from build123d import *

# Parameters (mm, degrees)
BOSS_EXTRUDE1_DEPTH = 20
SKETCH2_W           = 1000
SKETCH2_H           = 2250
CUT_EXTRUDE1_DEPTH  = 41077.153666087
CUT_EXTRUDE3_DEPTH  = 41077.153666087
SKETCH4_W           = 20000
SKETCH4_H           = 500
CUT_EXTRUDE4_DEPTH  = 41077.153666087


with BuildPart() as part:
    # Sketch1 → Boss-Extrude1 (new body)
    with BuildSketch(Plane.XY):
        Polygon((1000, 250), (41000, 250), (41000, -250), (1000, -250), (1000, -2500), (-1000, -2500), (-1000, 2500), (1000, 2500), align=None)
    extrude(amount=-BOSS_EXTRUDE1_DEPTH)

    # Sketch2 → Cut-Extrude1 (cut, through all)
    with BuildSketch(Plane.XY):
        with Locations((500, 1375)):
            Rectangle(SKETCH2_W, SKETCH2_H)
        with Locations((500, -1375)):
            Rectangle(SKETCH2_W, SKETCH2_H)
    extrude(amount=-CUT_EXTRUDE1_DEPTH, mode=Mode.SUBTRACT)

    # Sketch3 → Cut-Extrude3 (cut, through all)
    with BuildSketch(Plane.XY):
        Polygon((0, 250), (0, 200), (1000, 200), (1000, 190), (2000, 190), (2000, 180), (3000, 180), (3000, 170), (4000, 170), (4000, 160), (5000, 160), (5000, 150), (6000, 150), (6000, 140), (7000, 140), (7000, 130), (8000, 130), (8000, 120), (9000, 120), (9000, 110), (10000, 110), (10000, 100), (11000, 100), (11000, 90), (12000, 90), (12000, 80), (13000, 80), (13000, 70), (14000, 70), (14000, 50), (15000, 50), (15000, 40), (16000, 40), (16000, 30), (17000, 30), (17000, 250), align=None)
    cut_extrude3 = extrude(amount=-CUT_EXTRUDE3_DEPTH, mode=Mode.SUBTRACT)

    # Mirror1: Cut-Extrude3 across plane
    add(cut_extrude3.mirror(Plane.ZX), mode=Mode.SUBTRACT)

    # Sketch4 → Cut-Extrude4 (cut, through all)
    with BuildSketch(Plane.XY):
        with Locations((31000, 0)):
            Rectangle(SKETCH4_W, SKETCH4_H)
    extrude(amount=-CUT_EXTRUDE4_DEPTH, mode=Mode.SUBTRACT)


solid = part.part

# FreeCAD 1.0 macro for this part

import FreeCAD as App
import Part
import Sketcher
from FreeCAD import Vector
Q = App.Units.Quantity


def add_polygon(sketch, points):
    """Adds a closed chain of lines whose ends are joined by coincident constraints."""
    first, n = sketch.GeometryCount, len(points)
    for a, b in zip(points, points[1:] + points[:1]):
        sketch.addGeometry(Part.LineSegment(App.Vector(*a, 0), App.Vector(*b, 0)), False)
    for i in range(n):
        sketch.addConstraint(Sketcher.Constraint("Coincident", first + i, 2, first + (i + 1) % n, 1))

doc = App.newDocument("Part")
body = doc.addObject("PartDesign::Body", "Body")

# Sketch on XY plane
sketch1 = body.newObject("Sketcher::SketchObject", "Sketch")
sketch1.AttachmentSupport = (doc.getObject("XY_Plane"), [""])
sketch1.MapMode = "FlatFace"
add_polygon(sketch1, [(41000, 250), (1000, 250), (1000, 2500), (-1000, 2500), (-1000, -2500), (1000, -2500), (1000, -250), (41000, -250)])  # lines 0-7
sketch1.addConstraint([
    Sketcher.Constraint("Horizontal", 0),
    Sketcher.Constraint("Vertical", 1),
    Sketcher.Constraint("Horizontal", 2),
    Sketcher.Constraint("Vertical", 3),
    Sketcher.Constraint("Horizontal", 4),
    Sketcher.Constraint("Vertical", 5),
    Sketcher.Constraint("Horizontal", 6),
    Sketcher.Constraint("Vertical", 7),
    Sketcher.Constraint("Symmetric", 1, 2, 3, 2, -1, 1),
    Sketcher.Constraint("Symmetric", 0, 2, 5, 2, -1),
    Sketcher.Constraint("DistanceX", 0, 2, 0, 1, Q("40000 mm")),
    Sketcher.Constraint("DistanceX", 2, 2, 2, 1, Q("2000 mm")),
    Sketcher.Constraint("DistanceY", 1, 1, 1, 2, Q("2250 mm")),
    Sketcher.Constraint("DistanceY", 3, 2, 3, 1, Q("5000 mm")),
])
pad1 = body.newObject("PartDesign::Pad", "Pad")
pad1.Profile = sketch1
pad1.Length = 20
pad1.Reversed = True

# Sketch on XY plane
sketch2 = body.newObject("Sketcher::SketchObject", "Sketch001")
sketch2.AttachmentSupport = (doc.getObject("XY_Plane"), [""])
sketch2.MapMode = "FlatFace"
add_polygon(sketch2, [(0, 2500), (0, 250), (1000, 250), (1000, 2500)])  # lines 0-3
add_polygon(sketch2, [(0, -250), (0, -2500), (1000, -2500), (1000, -250)])  # lines 4-7
sketch2.addConstraint([
    Sketcher.Constraint("Vertical", 0),
    Sketcher.Constraint("Horizontal", 1),
    Sketcher.Constraint("Vertical", 2),
    Sketcher.Constraint("Horizontal", 3),
    Sketcher.Constraint("Vertical", 4),
    Sketcher.Constraint("Horizontal", 5),
    Sketcher.Constraint("Vertical", 6),
    Sketcher.Constraint("Horizontal", 7),
    Sketcher.Constraint("Symmetric", 3, 2, 4, 2, -1, 1),
    Sketcher.Constraint("Symmetric", 1, 2, 6, 2, -1),
    Sketcher.Constraint("PointOnObject", 0, 2, -2),
    Sketcher.Constraint("DistanceX", 1, 1, 1, 2, Q("1000 mm")),
    Sketcher.Constraint("DistanceY", 0, 2, 0, 1, Q("2250 mm")),
    Sketcher.Constraint("DistanceY", -1, 1, 0, 2, Q("250 mm")),
])
pocket1 = body.newObject("PartDesign::Pocket", "Pocket")
pocket1.Profile = sketch2
pocket1.Type = "ThroughAll"

# Sketch on XY plane
sketch3 = body.newObject("Sketcher::SketchObject", "Sketch002")
sketch3.AttachmentSupport = (doc.getObject("XY_Plane"), [""])
sketch3.MapMode = "FlatFace"
add_polygon(sketch3, [(0, 250), (0, 200), (1000, 200), (1000, 190), (2000, 190), (2000, 180), (3000, 180), (3000, 170), (4000, 170), (4000, 160), (5000, 160), (5000, 150), (6000, 150), (6000, 140), (7000, 140), (7000, 130), (8000, 130), (8000, 120), (9000, 120), (9000, 110), (10000, 110), (10000, 100), (11000, 100), (11000, 90), (12000, 90), (12000, 80), (13000, 80), (13000, 70), (14000, 70), (14000, 50), (15000, 50), (15000, 40), (16000, 40), (16000, 30), (17000, 30), (17000, 250)])  # lines 0-35
sketch3.addConstraint([
    Sketcher.Constraint("Vertical", 0),
    Sketcher.Constraint("Horizontal", 1),
    Sketcher.Constraint("Vertical", 2),
    Sketcher.Constraint("Horizontal", 3),
    Sketcher.Constraint("Vertical", 4),
    Sketcher.Constraint("Horizontal", 5),
    Sketcher.Constraint("Vertical", 6),
    Sketcher.Constraint("Horizontal", 7),
    Sketcher.Constraint("Vertical", 8),
    Sketcher.Constraint("Horizontal", 9),
    Sketcher.Constraint("Vertical", 10),
    Sketcher.Constraint("Horizontal", 11),
    Sketcher.Constraint("Vertical", 12),
    Sketcher.Constraint("Horizontal", 13),
    Sketcher.Constraint("Vertical", 14),
    Sketcher.Constraint("Horizontal", 15),
    Sketcher.Constraint("Vertical", 16),
    Sketcher.Constraint("Horizontal", 17),
    Sketcher.Constraint("Vertical", 18),
    Sketcher.Constraint("Horizontal", 19),
    Sketcher.Constraint("Vertical", 20),
    Sketcher.Constraint("Horizontal", 21),
    Sketcher.Constraint("Vertical", 22),
    Sketcher.Constraint("Horizontal", 23),
    Sketcher.Constraint("Vertical", 24),
    Sketcher.Constraint("Horizontal", 25),
    Sketcher.Constraint("Vertical", 26),
    Sketcher.Constraint("Horizontal", 27),
    Sketcher.Constraint("Vertical", 28),
    Sketcher.Constraint("Horizontal", 29),
    Sketcher.Constraint("Vertical", 30),
    Sketcher.Constraint("Horizontal", 31),
    Sketcher.Constraint("Vertical", 32),
    Sketcher.Constraint("Horizontal", 33),
    Sketcher.Constraint("Vertical", 34),
    Sketcher.Constraint("Horizontal", 35),
    Sketcher.Constraint("PointOnObject", 0, 2, -2),
    Sketcher.Constraint("Equal", 1, 3),
    Sketcher.Constraint("Equal", 3, 5),
    Sketcher.Constraint("Equal", 5, 7),
    Sketcher.Constraint("Equal", 7, 9),
    Sketcher.Constraint("Equal", 9, 11),
    Sketcher.Constraint("Equal", 11, 13),
    Sketcher.Constraint("Equal", 13, 15),
    Sketcher.Constraint("Equal", 15, 17),
    Sketcher.Constraint("Equal", 17, 19),
    Sketcher.Constraint("Equal", 19, 21),
    Sketcher.Constraint("Equal", 21, 23),
    Sketcher.Constraint("Equal", 23, 25),
    Sketcher.Constraint("Equal", 25, 27),
    Sketcher.Constraint("Equal", 27, 29),
    Sketcher.Constraint("Equal", 29, 31),
    Sketcher.Constraint("Equal", 31, 33),
    Sketcher.Constraint("Equal", 2, 4),
    Sketcher.Constraint("Equal", 4, 6),
    Sketcher.Constraint("Equal", 6, 8),
    Sketcher.Constraint("Equal", 8, 10),
    Sketcher.Constraint("Equal", 10, 12),
    Sketcher.Constraint("Equal", 12, 14),
    Sketcher.Constraint("Equal", 14, 16),
    Sketcher.Constraint("Equal", 16, 18),
    Sketcher.Constraint("Equal", 18, 20),
    Sketcher.Constraint("Equal", 20, 22),
    Sketcher.Constraint("Equal", 22, 24),
    Sketcher.Constraint("Equal", 24, 26),
    Sketcher.Constraint("Equal", 26, 30),
    Sketcher.Constraint("Equal", 30, 32),
    Sketcher.Constraint("DistanceX", 1, 1, 1, 2, Q("1000 mm")),
    Sketcher.Constraint("DistanceY", 0, 2, 0, 1, Q("50 mm")),
    Sketcher.Constraint("DistanceY", 2, 2, 2, 1, Q("10 mm")),
    Sketcher.Constraint("DistanceY", 28, 2, 28, 1, Q("20 mm")),
    Sketcher.Constraint("DistanceY", -1, 1, 0, 2, Q("200 mm")),
])
pocket2 = body.newObject("PartDesign::Pocket", "Pocket001")
pocket2.Profile = sketch3
pocket2.Type = "ThroughAll"
doc.recompute()

mirrored = body.newObject("PartDesign::Mirrored", "Mirrored")
mirrored.Originals = [pocket2]
mirrored.MirrorPlane = (doc.getObject("XZ_Plane"), [""])
body.Tip = mirrored

# Sketch on XY plane
sketch4 = body.newObject("Sketcher::SketchObject", "Sketch003")
sketch4.AttachmentSupport = (doc.getObject("XY_Plane"), [""])
sketch4.MapMode = "FlatFace"
add_polygon(sketch4, [(21000, 250), (21000, -250), (41000, -250), (41000, 250)])  # lines 0-3
sketch4.addConstraint([
    Sketcher.Constraint("Vertical", 0),
    Sketcher.Constraint("Horizontal", 1),
    Sketcher.Constraint("Vertical", 2),
    Sketcher.Constraint("Horizontal", 3),
    Sketcher.Constraint("DistanceX", 1, 1, 1, 2, Q("20000 mm")),
    Sketcher.Constraint("DistanceY", 0, 2, 0, 1, Q("500 mm")),
    Sketcher.Constraint("DistanceX", -1, 1, 0, 2, Q("21000 mm")),
    Sketcher.Constraint("DistanceY", 0, 2, -1, 1, Q("250 mm")),
])
pocket3 = body.newObject("PartDesign::Pocket", "Pocket002")
pocket3.Profile = sketch4
pocket3.Type = "ThroughAll"

doc.recompute()
